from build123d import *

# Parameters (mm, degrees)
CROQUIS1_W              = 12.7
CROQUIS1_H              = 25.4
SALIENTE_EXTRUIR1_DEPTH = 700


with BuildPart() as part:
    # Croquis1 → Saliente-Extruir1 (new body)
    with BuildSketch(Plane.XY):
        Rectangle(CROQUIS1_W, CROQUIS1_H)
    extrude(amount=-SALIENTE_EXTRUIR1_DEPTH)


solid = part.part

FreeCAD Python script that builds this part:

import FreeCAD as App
import Part
import Sketcher

V = App.Vector
Q = App.Units.Quantity

doc = App.newDocument("Part")
body = doc.addObject("PartDesign::Body", "Body")

sketch1 = body.newObject("Sketcher::SketchObject", "Sketch")
sketch1.AttachmentSupport = (doc.getObject("XY_Plane"), [""])
sketch1.MapMode = "FlatFace"
sketch1.addGeometry(Part.LineSegment(V(-6, 13, 0), V(-6, -13, 0)), False)
sketch1.addGeometry(Part.LineSegment(V(-6, -13, 0), V(6, -13, 0)), False)
sketch1.addGeometry(Part.LineSegment(V(6, -13, 0), V(6, 13, 0)), False)
sketch1.addGeometry(Part.LineSegment(V(6, 13, 0), V(-6, 13, 0)), False)
sketch1.addConstraint(Sketcher.Constraint("Coincident", 0, 2, 1, 1))
sketch1.addConstraint(Sketcher.Constraint("Coincident", 1, 2, 2, 1))
sketch1.addConstraint(Sketcher.Constraint("Coincident", 2, 2, 3, 1))
sketch1.addConstraint(Sketcher.Constraint("Coincident", 3, 2, 0, 1))
sketch1.addConstraint(Sketcher.Constraint("Vertical", 0))
sketch1.addConstraint(Sketcher.Constraint("Horizontal", 1))
sketch1.addConstraint(Sketcher.Constraint("Vertical", 2))
sketch1.addConstraint(Sketcher.Constraint("Horizontal", 3))
sketch1.addConstraint(Sketcher.Constraint("Symmetric", 0, 2, 2, 2, -1, 1))
sketch1.addConstraint(Sketcher.Constraint("DistanceY", 0, 2, 0, 1, Q("1 in")))
sketch1.addConstraint(Sketcher.Constraint("DistanceX", 1, 1, 1, 2, Q("0.5 in")))
pad1 = body.newObject("PartDesign::Pad", "Pad")
pad1.Profile = sketch1
pad1.Length = 700
pad1.Reversed = True

doc.recompute()
